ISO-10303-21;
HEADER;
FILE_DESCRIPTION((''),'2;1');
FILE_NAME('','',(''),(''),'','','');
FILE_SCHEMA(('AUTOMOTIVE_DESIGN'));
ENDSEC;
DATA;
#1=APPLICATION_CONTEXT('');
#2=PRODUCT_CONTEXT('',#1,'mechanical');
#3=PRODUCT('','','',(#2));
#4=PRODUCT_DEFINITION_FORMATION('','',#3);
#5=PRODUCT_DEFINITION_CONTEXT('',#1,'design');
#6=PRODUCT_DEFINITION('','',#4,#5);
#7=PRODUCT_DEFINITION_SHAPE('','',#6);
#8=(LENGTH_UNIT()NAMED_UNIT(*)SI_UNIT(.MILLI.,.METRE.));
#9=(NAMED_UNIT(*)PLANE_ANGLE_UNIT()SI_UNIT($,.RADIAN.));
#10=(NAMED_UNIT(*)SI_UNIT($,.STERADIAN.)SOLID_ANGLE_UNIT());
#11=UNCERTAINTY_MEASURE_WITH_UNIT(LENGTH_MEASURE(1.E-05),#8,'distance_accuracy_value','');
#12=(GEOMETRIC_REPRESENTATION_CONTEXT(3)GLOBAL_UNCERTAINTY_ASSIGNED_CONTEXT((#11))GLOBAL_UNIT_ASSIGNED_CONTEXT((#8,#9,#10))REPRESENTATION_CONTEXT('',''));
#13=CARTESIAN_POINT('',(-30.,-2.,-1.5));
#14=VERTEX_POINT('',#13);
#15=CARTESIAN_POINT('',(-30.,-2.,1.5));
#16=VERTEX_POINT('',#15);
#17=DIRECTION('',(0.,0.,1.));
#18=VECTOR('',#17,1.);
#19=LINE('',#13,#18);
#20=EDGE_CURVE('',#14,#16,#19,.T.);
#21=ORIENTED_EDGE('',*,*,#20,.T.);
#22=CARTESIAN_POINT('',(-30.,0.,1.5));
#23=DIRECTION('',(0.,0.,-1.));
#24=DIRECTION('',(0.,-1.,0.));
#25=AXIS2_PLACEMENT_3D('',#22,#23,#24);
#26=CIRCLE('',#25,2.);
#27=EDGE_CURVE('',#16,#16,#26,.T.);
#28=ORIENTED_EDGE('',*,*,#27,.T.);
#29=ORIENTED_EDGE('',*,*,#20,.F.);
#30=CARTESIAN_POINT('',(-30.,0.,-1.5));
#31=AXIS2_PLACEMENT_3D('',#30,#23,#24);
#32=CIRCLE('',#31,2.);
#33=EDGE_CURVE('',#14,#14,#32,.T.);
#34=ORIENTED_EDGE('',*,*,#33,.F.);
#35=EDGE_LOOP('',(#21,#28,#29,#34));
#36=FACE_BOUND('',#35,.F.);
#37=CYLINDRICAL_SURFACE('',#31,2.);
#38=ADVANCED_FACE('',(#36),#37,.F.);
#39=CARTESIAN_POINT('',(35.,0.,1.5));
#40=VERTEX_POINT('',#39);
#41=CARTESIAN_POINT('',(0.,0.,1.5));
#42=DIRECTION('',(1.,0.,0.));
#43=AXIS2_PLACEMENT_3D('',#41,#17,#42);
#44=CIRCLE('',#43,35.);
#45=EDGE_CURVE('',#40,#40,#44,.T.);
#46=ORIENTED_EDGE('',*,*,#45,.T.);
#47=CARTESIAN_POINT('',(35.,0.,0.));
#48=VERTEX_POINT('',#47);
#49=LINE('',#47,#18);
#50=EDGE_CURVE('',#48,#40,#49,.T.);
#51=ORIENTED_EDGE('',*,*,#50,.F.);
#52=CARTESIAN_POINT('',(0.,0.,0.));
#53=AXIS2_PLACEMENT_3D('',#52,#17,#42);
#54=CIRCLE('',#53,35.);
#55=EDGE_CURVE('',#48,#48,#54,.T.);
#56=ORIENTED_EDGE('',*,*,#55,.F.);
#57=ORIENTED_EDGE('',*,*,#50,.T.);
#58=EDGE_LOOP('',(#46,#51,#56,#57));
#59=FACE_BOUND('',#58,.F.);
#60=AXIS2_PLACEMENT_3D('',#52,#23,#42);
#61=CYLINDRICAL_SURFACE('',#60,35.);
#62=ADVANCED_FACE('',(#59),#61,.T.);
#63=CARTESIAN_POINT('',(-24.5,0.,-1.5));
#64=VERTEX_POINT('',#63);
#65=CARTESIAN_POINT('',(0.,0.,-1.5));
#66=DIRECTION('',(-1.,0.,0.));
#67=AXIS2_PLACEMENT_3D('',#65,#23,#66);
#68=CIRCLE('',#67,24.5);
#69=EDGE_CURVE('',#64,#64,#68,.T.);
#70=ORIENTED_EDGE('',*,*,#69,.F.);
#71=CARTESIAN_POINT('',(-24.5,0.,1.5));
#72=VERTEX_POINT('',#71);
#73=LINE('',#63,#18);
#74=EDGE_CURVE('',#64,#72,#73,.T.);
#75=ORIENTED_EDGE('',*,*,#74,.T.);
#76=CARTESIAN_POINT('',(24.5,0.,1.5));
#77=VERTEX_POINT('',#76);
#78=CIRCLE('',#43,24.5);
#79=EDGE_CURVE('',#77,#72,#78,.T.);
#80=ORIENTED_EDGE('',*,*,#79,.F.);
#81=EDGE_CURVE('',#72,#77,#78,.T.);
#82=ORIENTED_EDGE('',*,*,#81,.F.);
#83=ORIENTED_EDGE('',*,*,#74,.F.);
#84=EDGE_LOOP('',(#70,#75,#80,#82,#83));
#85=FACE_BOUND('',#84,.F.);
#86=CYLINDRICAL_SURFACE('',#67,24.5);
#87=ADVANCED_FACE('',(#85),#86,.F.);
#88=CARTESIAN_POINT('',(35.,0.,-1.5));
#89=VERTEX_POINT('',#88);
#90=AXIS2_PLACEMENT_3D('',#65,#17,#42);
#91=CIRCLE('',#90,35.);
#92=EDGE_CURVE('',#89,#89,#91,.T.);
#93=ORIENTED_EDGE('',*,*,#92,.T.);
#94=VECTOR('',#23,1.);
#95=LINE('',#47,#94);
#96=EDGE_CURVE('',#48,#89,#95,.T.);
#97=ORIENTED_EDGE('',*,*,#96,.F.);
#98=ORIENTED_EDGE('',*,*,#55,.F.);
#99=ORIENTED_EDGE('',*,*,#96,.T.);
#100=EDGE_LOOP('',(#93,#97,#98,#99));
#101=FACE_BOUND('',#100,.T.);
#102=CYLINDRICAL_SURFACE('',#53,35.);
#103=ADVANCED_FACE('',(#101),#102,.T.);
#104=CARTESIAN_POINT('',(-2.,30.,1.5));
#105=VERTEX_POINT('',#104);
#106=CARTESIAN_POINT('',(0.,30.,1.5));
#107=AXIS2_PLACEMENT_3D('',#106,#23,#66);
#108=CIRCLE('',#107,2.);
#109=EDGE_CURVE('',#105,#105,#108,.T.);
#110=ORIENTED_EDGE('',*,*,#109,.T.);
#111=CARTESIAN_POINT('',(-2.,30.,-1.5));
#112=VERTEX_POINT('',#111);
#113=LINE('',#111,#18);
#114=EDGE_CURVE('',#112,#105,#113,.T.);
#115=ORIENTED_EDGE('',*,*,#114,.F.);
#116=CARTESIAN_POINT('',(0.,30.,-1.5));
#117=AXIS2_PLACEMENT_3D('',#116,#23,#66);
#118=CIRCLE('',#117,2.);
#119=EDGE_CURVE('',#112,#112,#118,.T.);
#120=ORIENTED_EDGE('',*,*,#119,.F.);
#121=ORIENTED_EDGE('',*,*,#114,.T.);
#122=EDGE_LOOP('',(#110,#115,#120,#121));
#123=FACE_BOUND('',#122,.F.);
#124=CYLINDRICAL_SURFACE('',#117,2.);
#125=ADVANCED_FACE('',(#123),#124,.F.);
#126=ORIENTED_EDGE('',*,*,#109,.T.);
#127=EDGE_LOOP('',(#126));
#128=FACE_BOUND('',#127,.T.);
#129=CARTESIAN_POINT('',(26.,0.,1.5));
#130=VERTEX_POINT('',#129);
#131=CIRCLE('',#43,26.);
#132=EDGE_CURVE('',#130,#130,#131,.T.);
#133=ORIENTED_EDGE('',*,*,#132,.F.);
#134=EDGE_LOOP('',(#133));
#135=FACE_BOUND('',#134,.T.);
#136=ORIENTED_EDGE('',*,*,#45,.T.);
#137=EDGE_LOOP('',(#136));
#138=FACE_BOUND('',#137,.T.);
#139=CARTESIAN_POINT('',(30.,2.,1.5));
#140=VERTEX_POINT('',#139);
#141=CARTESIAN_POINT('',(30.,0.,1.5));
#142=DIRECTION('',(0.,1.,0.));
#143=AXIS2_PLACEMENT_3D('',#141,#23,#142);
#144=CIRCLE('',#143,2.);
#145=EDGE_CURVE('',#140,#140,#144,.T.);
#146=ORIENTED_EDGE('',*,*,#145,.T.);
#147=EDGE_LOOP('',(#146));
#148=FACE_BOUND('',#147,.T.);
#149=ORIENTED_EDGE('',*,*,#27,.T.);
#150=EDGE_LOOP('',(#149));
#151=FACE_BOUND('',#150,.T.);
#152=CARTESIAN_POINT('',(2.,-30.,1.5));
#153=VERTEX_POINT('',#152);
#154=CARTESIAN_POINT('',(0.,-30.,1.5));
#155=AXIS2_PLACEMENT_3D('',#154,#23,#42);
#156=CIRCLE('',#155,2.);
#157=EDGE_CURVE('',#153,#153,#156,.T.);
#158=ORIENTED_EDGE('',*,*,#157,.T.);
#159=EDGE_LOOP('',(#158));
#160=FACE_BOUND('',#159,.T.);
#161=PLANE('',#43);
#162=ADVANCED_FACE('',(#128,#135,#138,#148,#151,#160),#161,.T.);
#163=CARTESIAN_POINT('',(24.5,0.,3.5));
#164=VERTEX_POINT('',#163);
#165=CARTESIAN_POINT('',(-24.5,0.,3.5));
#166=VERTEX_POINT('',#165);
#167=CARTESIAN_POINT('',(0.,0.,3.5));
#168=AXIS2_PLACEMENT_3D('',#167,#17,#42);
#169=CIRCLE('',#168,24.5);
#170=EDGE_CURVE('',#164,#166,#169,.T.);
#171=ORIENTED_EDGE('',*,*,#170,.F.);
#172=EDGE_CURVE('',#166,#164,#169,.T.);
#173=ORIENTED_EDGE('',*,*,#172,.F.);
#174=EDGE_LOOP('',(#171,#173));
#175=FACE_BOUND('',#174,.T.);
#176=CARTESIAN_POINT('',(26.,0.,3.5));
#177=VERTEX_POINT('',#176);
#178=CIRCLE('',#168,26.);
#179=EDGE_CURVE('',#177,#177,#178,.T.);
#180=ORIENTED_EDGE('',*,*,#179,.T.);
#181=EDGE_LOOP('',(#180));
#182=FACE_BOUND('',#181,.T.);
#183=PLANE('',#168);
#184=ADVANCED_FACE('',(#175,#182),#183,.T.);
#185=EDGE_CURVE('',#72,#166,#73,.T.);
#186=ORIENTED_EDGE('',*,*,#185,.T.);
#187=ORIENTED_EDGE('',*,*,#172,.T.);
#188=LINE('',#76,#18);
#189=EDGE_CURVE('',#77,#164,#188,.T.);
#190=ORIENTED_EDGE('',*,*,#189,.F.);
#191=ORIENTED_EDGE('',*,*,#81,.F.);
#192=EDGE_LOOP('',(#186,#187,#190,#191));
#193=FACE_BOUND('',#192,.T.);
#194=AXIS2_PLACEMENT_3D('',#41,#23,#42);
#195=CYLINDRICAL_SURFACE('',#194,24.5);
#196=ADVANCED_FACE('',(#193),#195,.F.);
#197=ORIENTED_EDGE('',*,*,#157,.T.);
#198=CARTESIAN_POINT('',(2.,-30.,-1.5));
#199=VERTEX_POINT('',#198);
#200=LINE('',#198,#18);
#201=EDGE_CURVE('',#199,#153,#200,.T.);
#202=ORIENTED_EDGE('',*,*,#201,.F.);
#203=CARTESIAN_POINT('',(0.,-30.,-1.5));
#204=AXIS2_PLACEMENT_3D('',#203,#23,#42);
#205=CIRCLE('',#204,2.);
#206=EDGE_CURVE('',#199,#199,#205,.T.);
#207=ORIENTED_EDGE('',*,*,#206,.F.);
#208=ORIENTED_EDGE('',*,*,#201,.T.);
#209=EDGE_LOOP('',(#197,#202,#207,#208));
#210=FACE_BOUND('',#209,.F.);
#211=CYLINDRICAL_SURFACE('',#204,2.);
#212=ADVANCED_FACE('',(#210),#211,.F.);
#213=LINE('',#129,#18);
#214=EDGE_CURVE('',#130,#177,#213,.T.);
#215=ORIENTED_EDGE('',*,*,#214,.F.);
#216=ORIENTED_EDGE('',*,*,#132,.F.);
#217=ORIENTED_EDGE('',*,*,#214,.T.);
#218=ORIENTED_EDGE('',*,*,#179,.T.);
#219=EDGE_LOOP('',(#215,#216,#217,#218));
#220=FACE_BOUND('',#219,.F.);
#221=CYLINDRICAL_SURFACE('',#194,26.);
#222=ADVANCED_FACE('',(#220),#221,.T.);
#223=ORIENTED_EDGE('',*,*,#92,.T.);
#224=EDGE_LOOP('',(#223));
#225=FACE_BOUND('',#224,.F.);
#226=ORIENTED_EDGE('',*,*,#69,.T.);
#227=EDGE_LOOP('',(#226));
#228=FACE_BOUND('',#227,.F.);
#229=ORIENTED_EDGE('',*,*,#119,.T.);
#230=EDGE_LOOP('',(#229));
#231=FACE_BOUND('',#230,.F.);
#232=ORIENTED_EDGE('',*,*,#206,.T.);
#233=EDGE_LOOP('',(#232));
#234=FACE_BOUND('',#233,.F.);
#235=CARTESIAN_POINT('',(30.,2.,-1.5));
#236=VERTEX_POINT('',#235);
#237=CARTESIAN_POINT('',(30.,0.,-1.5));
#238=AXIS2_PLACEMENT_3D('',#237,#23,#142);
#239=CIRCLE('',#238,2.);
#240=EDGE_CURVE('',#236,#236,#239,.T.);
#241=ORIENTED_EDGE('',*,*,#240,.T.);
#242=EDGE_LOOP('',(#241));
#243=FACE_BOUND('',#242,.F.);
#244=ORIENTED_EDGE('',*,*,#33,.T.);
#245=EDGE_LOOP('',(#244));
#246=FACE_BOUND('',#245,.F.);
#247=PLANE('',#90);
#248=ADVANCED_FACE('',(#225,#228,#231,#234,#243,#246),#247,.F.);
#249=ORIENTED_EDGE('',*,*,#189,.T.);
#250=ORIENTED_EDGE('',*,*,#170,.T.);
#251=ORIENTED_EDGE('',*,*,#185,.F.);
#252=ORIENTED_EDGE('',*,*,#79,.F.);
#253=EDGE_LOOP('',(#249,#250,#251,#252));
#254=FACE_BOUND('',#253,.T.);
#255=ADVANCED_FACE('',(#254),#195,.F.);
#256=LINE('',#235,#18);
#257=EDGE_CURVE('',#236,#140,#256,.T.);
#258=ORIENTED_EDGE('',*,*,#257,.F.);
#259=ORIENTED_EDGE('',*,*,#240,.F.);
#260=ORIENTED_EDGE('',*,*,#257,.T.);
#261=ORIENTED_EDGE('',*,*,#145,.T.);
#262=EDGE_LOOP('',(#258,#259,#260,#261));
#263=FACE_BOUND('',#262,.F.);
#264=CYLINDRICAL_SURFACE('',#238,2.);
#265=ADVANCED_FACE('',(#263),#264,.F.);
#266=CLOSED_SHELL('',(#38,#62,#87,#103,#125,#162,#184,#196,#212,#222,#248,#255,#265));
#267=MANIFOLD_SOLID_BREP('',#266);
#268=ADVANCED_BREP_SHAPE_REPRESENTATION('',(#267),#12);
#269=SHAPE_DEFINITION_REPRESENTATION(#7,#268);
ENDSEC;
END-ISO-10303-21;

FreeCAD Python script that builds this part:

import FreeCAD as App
import Part
import Sketcher
from FreeCAD import Vector
Q = App.Units.Quantity

doc = App.newDocument("Part")
body = doc.addObject("PartDesign::Body", "Body")

sketch1 = body.newObject("Sketcher::SketchObject", "Sketch")
sketch1.AttachmentSupport = (doc.getObject("XY_Plane"), [""])
sketch1.MapMode = "FlatFace"
sketch1.addGeometry(Part.Circle(Vector(0, 0, 0), Vector(0, 0, 1), 35), False)
sketch1.addConstraint([
    Sketcher.Constraint("Coincident", 0, 3, -1, 1),
    Sketcher.Constraint("Diameter", 0, Q("70 mm")),
])
pad1 = body.newObject("PartDesign::Pad", "Pad")
pad1.Profile = sketch1
pad1.Length = 3
pad1.Midplane = True

sketch2 = body.newObject("Sketcher::SketchObject", "Sketch001")
sketch2.AttachmentSupport = (doc.getObject("XY_Plane"), [""])
sketch2.MapMode = "FlatFace"
sketch2.AttachmentOffset = App.Placement(Vector(0, 0, 1.5), App.Rotation())
sketch2.addGeometry([
    Part.Circle(Vector(0, 0, 0), Vector(0, 0, 1), 26),
    Part.Circle(Vector(0, 0, 0), Vector(0, 0, 1), 24.5),
], False)
sketch2.addConstraint([
    Sketcher.Constraint("Coincident", 0, 3, -1, 1),
    Sketcher.Constraint("Coincident", 1, 3, -1, 1),
    Sketcher.Constraint("Diameter", 0, Q("52 mm")),
    Sketcher.Constraint("Diameter", 1, Q("49 mm")),
])
pad2 = body.newObject("PartDesign::Pad", "Pad001")
pad2.Profile = sketch2
pad2.Length = 2

sketch3 = body.newObject("Sketcher::SketchObject", "Sketch002")
sketch3.AttachmentSupport = (doc.getObject("XY_Plane"), [""])
sketch3.MapMode = "FlatFace"
sketch3.AttachmentOffset = App.Placement(Vector(0, 0, -1.5), App.Rotation())
sketch3.addGeometry(Part.Circle(Vector(0, 0, 0), Vector(0, 0, 1), 24.5), False)
sketch3.addConstraint([
    Sketcher.Constraint("Coincident", 0, 3, -1, 1),
    Sketcher.Constraint("Diameter", 0, Q("49 mm")),
])
pocket1 = body.newObject("PartDesign::Pocket", "Pocket")
pocket1.Profile = sketch3
pocket1.Type = "ThroughAll"
pocket1.Reversed = True

sketch4 = body.newObject("Sketcher::SketchObject", "Sketch003")
sketch4.AttachmentSupport = (doc.getObject("XY_Plane"), [""])
sketch4.MapMode = "FlatFace"
sketch4.AttachmentOffset = App.Placement(Vector(0, 0, -1.5), App.Rotation())
sketch4.addGeometry(Part.Circle(Vector(0, 30, 0), Vector(0, 0, 1), 2), False)
sketch4.addConstraint([
    Sketcher.Constraint("PointOnObject", 0, 3, -2),
    Sketcher.Constraint("Diameter", 0, Q("4 mm")),
    Sketcher.Constraint("DistanceY", -1, 1, 0, 3, Q("30 mm")),
])
pocket2 = body.newObject("PartDesign::Pocket", "Pocket001")
pocket2.Profile = sketch4
pocket2.Type = "ThroughAll"
pocket2.Reversed = True
doc.recompute()

polarpattern = body.newObject("PartDesign::PolarPattern", "PolarPattern")
polarpattern.Originals = [pocket2]
polarpattern.Axis = (doc.getObject("Z_Axis"), [""])
polarpattern.Angle = 360
polarpattern.Occurrences = 4
body.Tip = polarpattern

doc.recompute()
